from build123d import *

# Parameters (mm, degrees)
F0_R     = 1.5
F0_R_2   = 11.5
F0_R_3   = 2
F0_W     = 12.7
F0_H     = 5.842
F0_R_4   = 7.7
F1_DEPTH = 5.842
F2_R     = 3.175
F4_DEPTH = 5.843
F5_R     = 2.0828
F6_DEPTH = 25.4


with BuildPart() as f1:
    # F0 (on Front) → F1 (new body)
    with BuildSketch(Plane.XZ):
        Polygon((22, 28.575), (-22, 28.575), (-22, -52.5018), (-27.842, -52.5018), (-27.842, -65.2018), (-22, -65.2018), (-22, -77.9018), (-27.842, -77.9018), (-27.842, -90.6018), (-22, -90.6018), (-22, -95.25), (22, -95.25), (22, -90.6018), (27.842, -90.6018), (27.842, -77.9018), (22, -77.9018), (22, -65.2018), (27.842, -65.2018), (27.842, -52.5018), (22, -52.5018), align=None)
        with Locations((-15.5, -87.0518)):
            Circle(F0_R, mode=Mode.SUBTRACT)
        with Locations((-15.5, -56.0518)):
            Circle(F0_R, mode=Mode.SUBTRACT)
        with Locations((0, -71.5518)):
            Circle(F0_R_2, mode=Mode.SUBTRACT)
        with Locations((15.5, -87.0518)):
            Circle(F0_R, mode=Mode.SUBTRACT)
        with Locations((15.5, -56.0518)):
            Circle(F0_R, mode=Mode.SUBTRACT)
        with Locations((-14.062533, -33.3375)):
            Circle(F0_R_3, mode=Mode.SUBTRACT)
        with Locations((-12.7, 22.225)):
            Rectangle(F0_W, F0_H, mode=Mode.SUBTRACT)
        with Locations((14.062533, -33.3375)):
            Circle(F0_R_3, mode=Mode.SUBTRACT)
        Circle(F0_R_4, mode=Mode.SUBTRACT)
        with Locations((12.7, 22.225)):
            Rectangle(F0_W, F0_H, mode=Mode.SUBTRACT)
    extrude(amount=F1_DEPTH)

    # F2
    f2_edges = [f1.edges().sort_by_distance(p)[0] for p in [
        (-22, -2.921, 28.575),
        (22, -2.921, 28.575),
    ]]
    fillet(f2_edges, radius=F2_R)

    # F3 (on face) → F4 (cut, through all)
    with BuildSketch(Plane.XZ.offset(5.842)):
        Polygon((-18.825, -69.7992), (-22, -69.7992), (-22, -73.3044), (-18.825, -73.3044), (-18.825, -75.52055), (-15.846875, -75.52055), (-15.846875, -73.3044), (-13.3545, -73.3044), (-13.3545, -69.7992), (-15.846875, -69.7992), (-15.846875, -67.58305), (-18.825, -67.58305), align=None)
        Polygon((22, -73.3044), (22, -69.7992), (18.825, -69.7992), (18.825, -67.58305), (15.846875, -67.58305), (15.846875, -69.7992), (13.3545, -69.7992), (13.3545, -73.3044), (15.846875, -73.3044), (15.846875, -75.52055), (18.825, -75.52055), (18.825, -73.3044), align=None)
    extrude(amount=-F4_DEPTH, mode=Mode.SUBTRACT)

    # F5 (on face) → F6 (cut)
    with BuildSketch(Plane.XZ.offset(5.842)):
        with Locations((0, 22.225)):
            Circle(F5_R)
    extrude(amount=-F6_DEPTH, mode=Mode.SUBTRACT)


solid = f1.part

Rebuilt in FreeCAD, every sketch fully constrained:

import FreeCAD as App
import Part
import Sketcher
Q = App.Units.Quantity


def edges_at(feature, points):
    """Names of the edges that pass closest to the given points."""
    edges = feature.Shape.Edges
    near = lambda p: min(range(len(edges)), key=lambda i: edges[i].distToShape(Part.Vertex(*p))[0])
    return sorted({f"Edge{near(p) + 1}" for p in points})


def add_polygon(sketch, points):
    """Adds a closed chain of lines whose ends are joined by coincident constraints."""
    first, n = sketch.GeometryCount, len(points)
    for a, b in zip(points, points[1:] + points[:1]):
        sketch.addGeometry(Part.LineSegment(App.Vector(*a, 0), App.Vector(*b, 0)), False)
    for i in range(n):
        sketch.addConstraint(Sketcher.Constraint("Coincident", first + i, 2, first + (i + 1) % n, 1))

doc = App.newDocument("Part")
body = doc.addObject("PartDesign::Body", "Body")

# Sketch on XZ plane
sketch1 = body.newObject("Sketcher::SketchObject", "Sketch")
sketch1.AttachmentSupport = (doc.getObject("XZ_Plane"), [""])
sketch1.MapMode = "FlatFace"
add_polygon(sketch1, [(22, 28.6), (-22, 28.6), (-22, -52.5), (-27.8, -52.5), (-27.8, -65.2), (-22, -65.2), (-22, -77.9), (-27.8, -77.9), (-27.8, -90.6), (-22, -90.6), (-22, -95.2), (22, -95.2), (22, -90.6), (27.8, -90.6), (27.8, -77.9), (22, -77.9), (22, -65.2), (27.8, -65.2), (27.8, -52.5), (22, -52.5)])  # lines 0-19
sketch1.addGeometry(Part.Circle(App.Vector(-15.5, -87.1, 0), App.Vector(0, 0, 1), 1.5), False)  # 20
sketch1.addGeometry(Part.Circle(App.Vector(-15.5, -56.1, 0), App.Vector(0, 0, 1), 1.5), False)  # 21
sketch1.addGeometry(Part.Circle(App.Vector(-14.1, -33.3, 0), App.Vector(0, 0, 1), 2), False)  # 22
sketch1.addGeometry(Part.Circle(App.Vector(0, -71.6, 0), App.Vector(0, 0, 1), 11.5), False)  # 23
sketch1.addGeometry(Part.Circle(App.Vector(15.5, -87.1, 0), App.Vector(0, 0, 1), 1.5), False)  # 24
sketch1.addGeometry(Part.Circle(App.Vector(15.5, -56.1, 0), App.Vector(0, 0, 1), 1.5), False)  # 25
sketch1.addGeometry(Part.Circle(App.Vector(14.1, -33.3, 0), App.Vector(0, 0, 1), 2), False)  # 26
add_polygon(sketch1, [(-6.3, 19.3), (-19.1, 19.3), (-19.1, 25.1), (-6.3, 25.1)])  # lines 27-30
sketch1.addGeometry(Part.Circle(App.Vector(0, 0, 0), App.Vector(0, 0, 1), 7.7), False)  # 31
add_polygon(sketch1, [(19.1, 19.3), (6.3, 19.3), (6.3, 25.1), (19.1, 25.1)])  # lines 32-35
sketch1.addConstraint([
    Sketcher.Constraint("Horizontal", 0),
    Sketcher.Constraint("Vertical", 1),
    Sketcher.Constraint("Horizontal", 2),
    Sketcher.Constraint("Vertical", 3),
    Sketcher.Constraint("Horizontal", 4),
    Sketcher.Constraint("Vertical", 5),
    Sketcher.Constraint("Horizontal", 6),
    Sketcher.Constraint("Vertical", 7),
    Sketcher.Constraint("Horizontal", 8),
    Sketcher.Constraint("Vertical", 9),
    Sketcher.Constraint("Horizontal", 10),
    Sketcher.Constraint("Vertical", 11),
    Sketcher.Constraint("Horizontal", 12),
    Sketcher.Constraint("Vertical", 13),
    Sketcher.Constraint("Horizontal", 14),
    Sketcher.Constraint("Vertical", 15),
    Sketcher.Constraint("Horizontal", 16),
    Sketcher.Constraint("Vertical", 17),
    Sketcher.Constraint("Horizontal", 18),
    Sketcher.Constraint("Vertical", 19),
    Sketcher.Constraint("Horizontal", 27),
    Sketcher.Constraint("Vertical", 28),
    Sketcher.Constraint("Horizontal", 29),
    Sketcher.Constraint("Vertical", 30),
    Sketcher.Constraint("Horizontal", 32),
    Sketcher.Constraint("Vertical", 33),
    Sketcher.Constraint("Horizontal", 34),
    Sketcher.Constraint("Vertical", 35),
    Sketcher.Constraint("Coincident", 31, 3, -1, 1),
    Sketcher.Constraint("Equal", 20, 21),
    Sketcher.Constraint("Equal", 21, 24),
    Sketcher.Constraint("Equal", 24, 25),
    Sketcher.Constraint("Equal", 22, 26),
    Sketcher.Constraint("Symmetric", 20, 3, 24, 3, -2),
    Sketcher.Constraint("Symmetric", 21, 3, 25, 3, -2),
    Sketcher.Constraint("Symmetric", 22, 3, 26, 3, -2),
    Sketcher.Constraint("Symmetric", 8, 2, 11, 2, -2),
    Sketcher.Constraint("Symmetric", 6, 2, 13, 2, -2),
    Sketcher.Constraint("Symmetric", 4, 2, 15, 2, -2),
    Sketcher.Constraint("Symmetric", 2, 2, 17, 2, -2),
    Sketcher.Constraint("Symmetric", 30, 2, 32, 2, -2),
    Sketcher.Constraint("Symmetric", 28, 2, 34, 2, -2),
    Sketcher.Constraint("PointOnObject", 23, 3, -2),
    Sketcher.Constraint("Vertical", 20, 3, 21, 3),
    Sketcher.Constraint("Vertical", 1, 2, 4, 2),
    Sketcher.Constraint("Vertical", 3, 2, 6, 2),
    Sketcher.Constraint("Vertical", 5, 2, 8, 2),
    Sketcher.Constraint("Vertical", 15, 2, 18, 2),
    Sketcher.Constraint("Equal", 34, 3),
    Sketcher.Constraint("Equal", 3, 5),
    Sketcher.Constraint("Equal", 5, 7),
    Sketcher.Constraint("Equal", 18, 28),
    Sketcher.Constraint("DistanceX", 27, 2, 27, 1, Q("0.5 in")),
    Sketcher.Constraint("DistanceX", 27, 2, 32, 2, Q("1 in")),
    Sketcher.Constraint("DistanceX", 2, 2, 2, 1, Q("0.23 in")),
    Sketcher.Constraint("Diameter", 20, 3.0),
    Sketcher.Constraint("Diameter", 22, 4.0),
    Sketcher.Constraint("Diameter", 23, 23.0),
    Sketcher.Constraint("Diameter", 31, 15.4),
    Sketcher.Constraint("DistanceY", 1, 2, 1, 1, Q("3.192 in")),
    Sketcher.Constraint("DistanceY", 9, 2, 9, 1, Q("0.183 in")),
    Sketcher.Constraint("DistanceY", 9, 2, -1, 1, Q("3.75 in")),
    Sketcher.Constraint("DistanceY", -1, 1, 27, 2, Q("0.76 in")),
    Sketcher.Constraint("DistanceY", 23, 3, 1, 2, Q("0.75 in")),
    Sketcher.Constraint("DistanceY", 22, 3, -1, 1, Q("1.3125 in")),
    Sketcher.Constraint("DistanceX", 0, 2, 0, 1, 44.0),
    Sketcher.Constraint("DistanceX", 20, 3, -1, 1, 15.5),
    Sketcher.Constraint("DistanceY", 20, 3, -1, 1, 87.0518),
    Sketcher.Constraint("DistanceY", 21, 3, -1, 1, 56.0518),
    Sketcher.Constraint("DistanceX", 22, 3, -1, 1, 14.062533),
])
pad1 = body.newObject("PartDesign::Pad", "Pad")
pad1.Profile = sketch1
pad1.Length = Q("0.23 in")
doc.recompute()

fillet = body.newObject("PartDesign::Fillet", "Fillet")
fillet.Base = (pad1, edges_at(pad1, [(-22, -2.921, 28.575), (22, -2.921, 28.575)]))
fillet.Radius = Q("0.125 in")

# Sketch on XZ plane
sketch2 = body.newObject("Sketcher::SketchObject", "Sketch001")
sketch2.AttachmentSupport = (doc.getObject("XZ_Plane"), [""])
sketch2.MapMode = "FlatFace"
sketch2.AttachmentOffset = App.Placement(App.Vector(0, 0, 0.23 * 25.4), App.Rotation())
add_polygon(sketch2, [(-18.8, -69.8), (-22, -69.8), (-22, -73.3), (-18.8, -73.3), (-18.8, -75.5), (-15.8, -75.5), (-15.8, -73.3), (-13.4, -73.3), (-13.4, -69.8), (-15.8, -69.8), (-15.8, -67.6), (-18.8, -67.6)])  # lines 0-11
add_polygon(sketch2, [(22, -73.3), (22, -69.8), (18.8, -69.8), (18.8, -67.6), (15.8, -67.6), (15.8, -69.8), (13.4, -69.8), (13.4, -73.3), (15.8, -73.3), (15.8, -75.5), (18.8, -75.5), (18.8, -73.3)])  # lines 12-23
sketch2.addConstraint([
    Sketcher.Constraint("Horizontal", 0),
    Sketcher.Constraint("Vertical", 1),
    Sketcher.Constraint("Horizontal", 2),
    Sketcher.Constraint("Vertical", 3),
    Sketcher.Constraint("Horizontal", 4),
    Sketcher.Constraint("Vertical", 5),
    Sketcher.Constraint("Horizontal", 6),
    Sketcher.Constraint("Vertical", 7),
    Sketcher.Constraint("Horizontal", 8),
    Sketcher.Constraint("Vertical", 9),
    Sketcher.Constraint("Horizontal", 10),
    Sketcher.Constraint("Vertical", 11),
    Sketcher.Constraint("Vertical", 12),
    Sketcher.Constraint("Horizontal", 13),
    Sketcher.Constraint("Vertical", 14),
    Sketcher.Constraint("Horizontal", 15),
    Sketcher.Constraint("Vertical", 16),
    Sketcher.Constraint("Horizontal", 17),
    Sketcher.Constraint("Vertical", 18),
    Sketcher.Constraint("Horizontal", 19),
    Sketcher.Constraint("Vertical", 20),
    Sketcher.Constraint("Horizontal", 21),
    Sketcher.Constraint("Vertical", 22),
    Sketcher.Constraint("Horizontal", 23),
    Sketcher.Constraint("Symmetric", 0, 2, 12, 2, -2),
    Sketcher.Constraint("Symmetric", 10, 2, 14, 2, -2),
    Sketcher.Constraint("Symmetric", 8, 2, 16, 2, -2),
    Sketcher.Constraint("Symmetric", 6, 2, 18, 2, -2),
    Sketcher.Constraint("Symmetric", 4, 2, 20, 2, -2),
    Sketcher.Constraint("Symmetric", 2, 2, 22, 2, -2),
    Sketcher.Constraint("Horizontal", 2, 2, 5, 2),
    Sketcher.Constraint("Horizontal", 0, 2, 7, 2),
    Sketcher.Constraint("Vertical", 5, 2, 8, 2),
    Sketcher.Constraint("Vertical", 3, 2, 10, 2),
    Sketcher.Constraint("Equal", 5, 9),
    Sketcher.Constraint("DistanceX", 0, 2, 0, 1, Q("0.125 in")),
    Sketcher.Constraint("DistanceY", 1, 2, 1, 1, Q("0.138 in")),
    Sketcher.Constraint("DistanceY", 0, 2, -1, 1, Q("2.748 in")),
    Sketcher.Constraint("DistanceY", 3, 2, 3, 1, 2.21615),
    Sketcher.Constraint("DistanceX", 0, 2, -1, 1, 22.0),
    Sketcher.Constraint("DistanceX", 6, 2, -1, 1, 13.3545),
    Sketcher.Constraint("DistanceX", 4, 1, 4, 2, 2.978125),
])
pocket1 = body.newObject("PartDesign::Pocket", "Pocket")
pocket1.Profile = sketch2
pocket1.Type = "ThroughAll"

# Sketch on XZ plane
sketch3 = body.newObject("Sketcher::SketchObject", "Sketch002")
sketch3.AttachmentSupport = (doc.getObject("XZ_Plane"), [""])
sketch3.MapMode = "FlatFace"
sketch3.AttachmentOffset = App.Placement(App.Vector(0, 0, 0.23 * 25.4), App.Rotation())
sketch3.addGeometry(Part.Circle(App.Vector(0, 22.2, 0), App.Vector(0, 0, 1), 2.1), False)
sketch3.addConstraint([
    Sketcher.Constraint("PointOnObject", 0, 3, -2),
    Sketcher.Constraint("Diameter", 0, Q("0.164 in")),
    Sketcher.Constraint("DistanceY", -1, 1, 0, 3, Q("0.875 in")),
])
pocket2 = body.newObject("PartDesign::Pocket", "Pocket001")
pocket2.Profile = sketch3
pocket2.Length = Q("1 in")

doc.recompute()
